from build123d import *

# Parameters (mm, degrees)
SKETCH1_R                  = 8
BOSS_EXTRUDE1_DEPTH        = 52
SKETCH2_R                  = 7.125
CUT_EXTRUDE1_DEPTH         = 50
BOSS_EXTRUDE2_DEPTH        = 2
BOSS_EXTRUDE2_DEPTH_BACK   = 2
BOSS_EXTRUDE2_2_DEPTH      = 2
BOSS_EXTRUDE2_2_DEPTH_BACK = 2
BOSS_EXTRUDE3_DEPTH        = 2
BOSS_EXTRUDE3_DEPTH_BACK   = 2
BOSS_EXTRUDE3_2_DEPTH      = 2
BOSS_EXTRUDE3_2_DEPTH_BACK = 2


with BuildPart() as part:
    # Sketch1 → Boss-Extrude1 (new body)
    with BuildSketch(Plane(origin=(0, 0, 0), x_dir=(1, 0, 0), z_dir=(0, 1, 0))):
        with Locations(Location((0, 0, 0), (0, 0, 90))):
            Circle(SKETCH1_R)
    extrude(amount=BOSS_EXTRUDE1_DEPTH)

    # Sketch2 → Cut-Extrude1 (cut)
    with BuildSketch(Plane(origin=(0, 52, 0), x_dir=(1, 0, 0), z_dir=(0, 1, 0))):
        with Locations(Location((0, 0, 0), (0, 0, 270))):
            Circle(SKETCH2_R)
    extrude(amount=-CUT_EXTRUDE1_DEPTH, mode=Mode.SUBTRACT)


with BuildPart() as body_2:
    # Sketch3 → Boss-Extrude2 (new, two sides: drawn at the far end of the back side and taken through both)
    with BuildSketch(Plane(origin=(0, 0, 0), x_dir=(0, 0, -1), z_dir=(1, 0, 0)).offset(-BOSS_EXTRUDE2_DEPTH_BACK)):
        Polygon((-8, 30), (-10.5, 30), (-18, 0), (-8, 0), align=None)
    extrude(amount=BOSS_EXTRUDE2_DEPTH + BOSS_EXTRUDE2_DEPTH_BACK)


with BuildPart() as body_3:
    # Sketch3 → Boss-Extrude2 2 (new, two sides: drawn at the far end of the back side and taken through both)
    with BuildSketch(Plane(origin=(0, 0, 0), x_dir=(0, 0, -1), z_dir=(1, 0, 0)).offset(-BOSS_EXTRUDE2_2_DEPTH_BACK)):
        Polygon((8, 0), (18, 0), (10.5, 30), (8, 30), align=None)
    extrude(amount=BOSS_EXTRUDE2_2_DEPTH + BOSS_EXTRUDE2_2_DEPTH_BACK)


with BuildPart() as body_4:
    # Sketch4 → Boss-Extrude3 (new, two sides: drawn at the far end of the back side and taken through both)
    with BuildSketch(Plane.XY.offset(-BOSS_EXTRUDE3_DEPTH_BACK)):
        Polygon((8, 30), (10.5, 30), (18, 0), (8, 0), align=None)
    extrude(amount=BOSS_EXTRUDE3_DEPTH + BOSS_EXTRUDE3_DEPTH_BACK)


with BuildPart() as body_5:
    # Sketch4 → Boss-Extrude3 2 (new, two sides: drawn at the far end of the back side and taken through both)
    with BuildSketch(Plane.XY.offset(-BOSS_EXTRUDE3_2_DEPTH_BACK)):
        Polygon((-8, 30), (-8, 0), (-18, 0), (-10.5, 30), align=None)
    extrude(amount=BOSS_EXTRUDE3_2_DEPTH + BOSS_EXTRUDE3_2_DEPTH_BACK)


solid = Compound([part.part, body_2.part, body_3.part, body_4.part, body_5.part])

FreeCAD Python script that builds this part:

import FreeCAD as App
import Part
import Sketcher
from FreeCAD import Vector


def add_polygon(sketch, points):
    """Adds a closed chain of lines whose ends are joined by coincident constraints."""
    first, n = sketch.GeometryCount, len(points)
    for a, b in zip(points, points[1:] + points[:1]):
        sketch.addGeometry(Part.LineSegment(App.Vector(*a, 0), App.Vector(*b, 0)), False)
    for i in range(n):
        sketch.addConstraint(Sketcher.Constraint("Coincident", first + i, 2, first + (i + 1) % n, 1))

doc = App.newDocument("Part")
body = doc.addObject("PartDesign::Body", "Body")

# Sketch on XZ plane
sketch1 = body.newObject("Sketcher::SketchObject", "Sketch")
sketch1.AttachmentSupport = (doc.getObject("XZ_Plane"), [""])
sketch1.MapMode = "FlatFace"
sketch1.addGeometry(Part.Circle(Vector(0, 0, 0), Vector(0, 0, 1), 8), False)
sketch1.addConstraint(Sketcher.Constraint("Coincident", 0, 3, -1, 1))
sketch1.addConstraint(Sketcher.Constraint("Diameter", 0, 16.0))
pad1 = body.newObject("PartDesign::Pad", "Pad")
pad1.Profile = sketch1
pad1.Length = 52
pad1.Reversed = True

# Sketch on XZ plane
sketch2 = body.newObject("Sketcher::SketchObject", "Sketch001")
sketch2.AttachmentSupport = (doc.getObject("XZ_Plane"), [""])
sketch2.MapMode = "FlatFace"
sketch2.AttachmentOffset = App.Placement(Vector(0, 0, -52), App.Rotation())
sketch2.addGeometry(Part.Circle(Vector(0, 0, 0), Vector(0, 0, 1), 7.125), False)
sketch2.addConstraint(Sketcher.Constraint("Coincident", 0, 3, -1, 1))
sketch2.addConstraint(Sketcher.Constraint("Diameter", 0, 14.25))
pocket1 = body.newObject("PartDesign::Pocket", "Pocket")
pocket1.Profile = sketch2
pocket1.Length = 50
pocket1.Reversed = True
body2 = doc.addObject("PartDesign::Body", "Body001")

# Sketch on YZ plane
sketch3 = body2.newObject("Sketcher::SketchObject", "Sketch002")
sketch3.AttachmentSupport = (doc.getObject("YZ_Plane001"), [""])
sketch3.MapMode = "FlatFace"
add_polygon(sketch3, [(30, 8), (30, 10.5), (0, 18), (0, 8)])  # lines 0-3
sketch3.addConstraint(Sketcher.Constraint("Vertical", 0))
sketch3.addConstraint(Sketcher.Constraint("Vertical", 2))
sketch3.addConstraint(Sketcher.Constraint("Horizontal", 3))
sketch3.addConstraint(Sketcher.Constraint("PointOnObject", 1, 2, -2))
sketch3.addConstraint(Sketcher.Constraint("DistanceX", 3, 1, 3, 2, 30.0))
sketch3.addConstraint(Sketcher.Constraint("DistanceY", 2, 2, 2, 1, 10.0))
sketch3.addConstraint(Sketcher.Constraint("DistanceY", 0, 1, 0, 2, 2.5))
sketch3.addConstraint(Sketcher.Constraint("DistanceY", -1, 1, 1, 2, 18.0))
pad2 = body2.newObject("PartDesign::Pad", "Pad001")
pad2.Profile = sketch3
pad2.Type = "TwoLengths"
pad2.Length = 2
pad2.Length2 = 2
body3 = doc.addObject("PartDesign::Body", "Body002")

# Sketch on YZ plane
sketch4 = body3.newObject("Sketcher::SketchObject", "Sketch003")
sketch4.AttachmentSupport = (doc.getObject("YZ_Plane002"), [""])
sketch4.MapMode = "FlatFace"
add_polygon(sketch4, [(0, -8), (0, -18), (30, -10.5), (30, -8)])  # lines 0-3
sketch4.addConstraint(Sketcher.Constraint("Vertical", 0))
sketch4.addConstraint(Sketcher.Constraint("Vertical", 2))
sketch4.addConstraint(Sketcher.Constraint("Horizontal", 3))
sketch4.addConstraint(Sketcher.Constraint("PointOnObject", 0, 2, -2))
sketch4.addConstraint(Sketcher.Constraint("DistanceX", 3, 2, 3, 1, 30.0))
sketch4.addConstraint(Sketcher.Constraint("DistanceY", 0, 2, 0, 1, 10.0))
sketch4.addConstraint(Sketcher.Constraint("DistanceY", 2, 1, 2, 2, 2.5))
sketch4.addConstraint(Sketcher.Constraint("DistanceY", 0, 2, -1, 1, 18.0))
pad3 = body3.newObject("PartDesign::Pad", "Pad002")
pad3.Profile = sketch4
pad3.Type = "TwoLengths"
pad3.Length = 2
pad3.Length2 = 2
body4 = doc.addObject("PartDesign::Body", "Body003")

# Sketch on XY plane
sketch5 = body4.newObject("Sketcher::SketchObject", "Sketch004")
sketch5.AttachmentSupport = (doc.getObject("XY_Plane003"), [""])
sketch5.MapMode = "FlatFace"
add_polygon(sketch5, [(10.5, 30), (8, 30), (8, 0), (18, 0)])  # lines 0-3
sketch5.addConstraint(Sketcher.Constraint("Horizontal", 0))
sketch5.addConstraint(Sketcher.Constraint("Vertical", 1))
sketch5.addConstraint(Sketcher.Constraint("Horizontal", 2))
sketch5.addConstraint(Sketcher.Constraint("PointOnObject", 1, 2, -1))
sketch5.addConstraint(Sketcher.Constraint("DistanceX", 2, 1, 2, 2, 10.0))
sketch5.addConstraint(Sketcher.Constraint("DistanceY", 1, 2, 1, 1, 30.0))
sketch5.addConstraint(Sketcher.Constraint("DistanceX", 0, 2, 0, 1, 2.5))
sketch5.addConstraint(Sketcher.Constraint("DistanceX", -1, 1, 0, 2, 8.0))
pad4 = body4.newObject("PartDesign::Pad", "Pad003")
pad4.Profile = sketch5
pad4.Type = "TwoLengths"
pad4.Length = 2
pad4.Length2 = 2
body5 = doc.addObject("PartDesign::Body", "Body004")

# Sketch on XY plane
sketch6 = body5.newObject("Sketcher::SketchObject", "Sketch005")
sketch6.AttachmentSupport = (doc.getObject("XY_Plane004"), [""])
sketch6.MapMode = "FlatFace"
add_polygon(sketch6, [(-8, 0), (-8, 30), (-10.5, 30), (-18, 0)])  # lines 0-3
sketch6.addConstraint(Sketcher.Constraint("Vertical", 0))
sketch6.addConstraint(Sketcher.Constraint("Horizontal", 1))
sketch6.addConstraint(Sketcher.Constraint("Horizontal", 3))
sketch6.addConstraint(Sketcher.Constraint("PointOnObject", 2, 2, -1))
sketch6.addConstraint(Sketcher.Constraint("DistanceX", 3, 1, 3, 2, 10.0))
sketch6.addConstraint(Sketcher.Constraint("DistanceY", 0, 1, 0, 2, 30.0))
sketch6.addConstraint(Sketcher.Constraint("DistanceX", 1, 2, 1, 1, 2.5))
sketch6.addConstraint(Sketcher.Constraint("DistanceX", 0, 2, -1, 1, 8.0))
pad5 = body5.newObject("PartDesign::Pad", "Pad004")
pad5.Profile = sketch6
pad5.Type = "TwoLengths"
pad5.Length = 2
pad5.Length2 = 2

doc.recompute()
